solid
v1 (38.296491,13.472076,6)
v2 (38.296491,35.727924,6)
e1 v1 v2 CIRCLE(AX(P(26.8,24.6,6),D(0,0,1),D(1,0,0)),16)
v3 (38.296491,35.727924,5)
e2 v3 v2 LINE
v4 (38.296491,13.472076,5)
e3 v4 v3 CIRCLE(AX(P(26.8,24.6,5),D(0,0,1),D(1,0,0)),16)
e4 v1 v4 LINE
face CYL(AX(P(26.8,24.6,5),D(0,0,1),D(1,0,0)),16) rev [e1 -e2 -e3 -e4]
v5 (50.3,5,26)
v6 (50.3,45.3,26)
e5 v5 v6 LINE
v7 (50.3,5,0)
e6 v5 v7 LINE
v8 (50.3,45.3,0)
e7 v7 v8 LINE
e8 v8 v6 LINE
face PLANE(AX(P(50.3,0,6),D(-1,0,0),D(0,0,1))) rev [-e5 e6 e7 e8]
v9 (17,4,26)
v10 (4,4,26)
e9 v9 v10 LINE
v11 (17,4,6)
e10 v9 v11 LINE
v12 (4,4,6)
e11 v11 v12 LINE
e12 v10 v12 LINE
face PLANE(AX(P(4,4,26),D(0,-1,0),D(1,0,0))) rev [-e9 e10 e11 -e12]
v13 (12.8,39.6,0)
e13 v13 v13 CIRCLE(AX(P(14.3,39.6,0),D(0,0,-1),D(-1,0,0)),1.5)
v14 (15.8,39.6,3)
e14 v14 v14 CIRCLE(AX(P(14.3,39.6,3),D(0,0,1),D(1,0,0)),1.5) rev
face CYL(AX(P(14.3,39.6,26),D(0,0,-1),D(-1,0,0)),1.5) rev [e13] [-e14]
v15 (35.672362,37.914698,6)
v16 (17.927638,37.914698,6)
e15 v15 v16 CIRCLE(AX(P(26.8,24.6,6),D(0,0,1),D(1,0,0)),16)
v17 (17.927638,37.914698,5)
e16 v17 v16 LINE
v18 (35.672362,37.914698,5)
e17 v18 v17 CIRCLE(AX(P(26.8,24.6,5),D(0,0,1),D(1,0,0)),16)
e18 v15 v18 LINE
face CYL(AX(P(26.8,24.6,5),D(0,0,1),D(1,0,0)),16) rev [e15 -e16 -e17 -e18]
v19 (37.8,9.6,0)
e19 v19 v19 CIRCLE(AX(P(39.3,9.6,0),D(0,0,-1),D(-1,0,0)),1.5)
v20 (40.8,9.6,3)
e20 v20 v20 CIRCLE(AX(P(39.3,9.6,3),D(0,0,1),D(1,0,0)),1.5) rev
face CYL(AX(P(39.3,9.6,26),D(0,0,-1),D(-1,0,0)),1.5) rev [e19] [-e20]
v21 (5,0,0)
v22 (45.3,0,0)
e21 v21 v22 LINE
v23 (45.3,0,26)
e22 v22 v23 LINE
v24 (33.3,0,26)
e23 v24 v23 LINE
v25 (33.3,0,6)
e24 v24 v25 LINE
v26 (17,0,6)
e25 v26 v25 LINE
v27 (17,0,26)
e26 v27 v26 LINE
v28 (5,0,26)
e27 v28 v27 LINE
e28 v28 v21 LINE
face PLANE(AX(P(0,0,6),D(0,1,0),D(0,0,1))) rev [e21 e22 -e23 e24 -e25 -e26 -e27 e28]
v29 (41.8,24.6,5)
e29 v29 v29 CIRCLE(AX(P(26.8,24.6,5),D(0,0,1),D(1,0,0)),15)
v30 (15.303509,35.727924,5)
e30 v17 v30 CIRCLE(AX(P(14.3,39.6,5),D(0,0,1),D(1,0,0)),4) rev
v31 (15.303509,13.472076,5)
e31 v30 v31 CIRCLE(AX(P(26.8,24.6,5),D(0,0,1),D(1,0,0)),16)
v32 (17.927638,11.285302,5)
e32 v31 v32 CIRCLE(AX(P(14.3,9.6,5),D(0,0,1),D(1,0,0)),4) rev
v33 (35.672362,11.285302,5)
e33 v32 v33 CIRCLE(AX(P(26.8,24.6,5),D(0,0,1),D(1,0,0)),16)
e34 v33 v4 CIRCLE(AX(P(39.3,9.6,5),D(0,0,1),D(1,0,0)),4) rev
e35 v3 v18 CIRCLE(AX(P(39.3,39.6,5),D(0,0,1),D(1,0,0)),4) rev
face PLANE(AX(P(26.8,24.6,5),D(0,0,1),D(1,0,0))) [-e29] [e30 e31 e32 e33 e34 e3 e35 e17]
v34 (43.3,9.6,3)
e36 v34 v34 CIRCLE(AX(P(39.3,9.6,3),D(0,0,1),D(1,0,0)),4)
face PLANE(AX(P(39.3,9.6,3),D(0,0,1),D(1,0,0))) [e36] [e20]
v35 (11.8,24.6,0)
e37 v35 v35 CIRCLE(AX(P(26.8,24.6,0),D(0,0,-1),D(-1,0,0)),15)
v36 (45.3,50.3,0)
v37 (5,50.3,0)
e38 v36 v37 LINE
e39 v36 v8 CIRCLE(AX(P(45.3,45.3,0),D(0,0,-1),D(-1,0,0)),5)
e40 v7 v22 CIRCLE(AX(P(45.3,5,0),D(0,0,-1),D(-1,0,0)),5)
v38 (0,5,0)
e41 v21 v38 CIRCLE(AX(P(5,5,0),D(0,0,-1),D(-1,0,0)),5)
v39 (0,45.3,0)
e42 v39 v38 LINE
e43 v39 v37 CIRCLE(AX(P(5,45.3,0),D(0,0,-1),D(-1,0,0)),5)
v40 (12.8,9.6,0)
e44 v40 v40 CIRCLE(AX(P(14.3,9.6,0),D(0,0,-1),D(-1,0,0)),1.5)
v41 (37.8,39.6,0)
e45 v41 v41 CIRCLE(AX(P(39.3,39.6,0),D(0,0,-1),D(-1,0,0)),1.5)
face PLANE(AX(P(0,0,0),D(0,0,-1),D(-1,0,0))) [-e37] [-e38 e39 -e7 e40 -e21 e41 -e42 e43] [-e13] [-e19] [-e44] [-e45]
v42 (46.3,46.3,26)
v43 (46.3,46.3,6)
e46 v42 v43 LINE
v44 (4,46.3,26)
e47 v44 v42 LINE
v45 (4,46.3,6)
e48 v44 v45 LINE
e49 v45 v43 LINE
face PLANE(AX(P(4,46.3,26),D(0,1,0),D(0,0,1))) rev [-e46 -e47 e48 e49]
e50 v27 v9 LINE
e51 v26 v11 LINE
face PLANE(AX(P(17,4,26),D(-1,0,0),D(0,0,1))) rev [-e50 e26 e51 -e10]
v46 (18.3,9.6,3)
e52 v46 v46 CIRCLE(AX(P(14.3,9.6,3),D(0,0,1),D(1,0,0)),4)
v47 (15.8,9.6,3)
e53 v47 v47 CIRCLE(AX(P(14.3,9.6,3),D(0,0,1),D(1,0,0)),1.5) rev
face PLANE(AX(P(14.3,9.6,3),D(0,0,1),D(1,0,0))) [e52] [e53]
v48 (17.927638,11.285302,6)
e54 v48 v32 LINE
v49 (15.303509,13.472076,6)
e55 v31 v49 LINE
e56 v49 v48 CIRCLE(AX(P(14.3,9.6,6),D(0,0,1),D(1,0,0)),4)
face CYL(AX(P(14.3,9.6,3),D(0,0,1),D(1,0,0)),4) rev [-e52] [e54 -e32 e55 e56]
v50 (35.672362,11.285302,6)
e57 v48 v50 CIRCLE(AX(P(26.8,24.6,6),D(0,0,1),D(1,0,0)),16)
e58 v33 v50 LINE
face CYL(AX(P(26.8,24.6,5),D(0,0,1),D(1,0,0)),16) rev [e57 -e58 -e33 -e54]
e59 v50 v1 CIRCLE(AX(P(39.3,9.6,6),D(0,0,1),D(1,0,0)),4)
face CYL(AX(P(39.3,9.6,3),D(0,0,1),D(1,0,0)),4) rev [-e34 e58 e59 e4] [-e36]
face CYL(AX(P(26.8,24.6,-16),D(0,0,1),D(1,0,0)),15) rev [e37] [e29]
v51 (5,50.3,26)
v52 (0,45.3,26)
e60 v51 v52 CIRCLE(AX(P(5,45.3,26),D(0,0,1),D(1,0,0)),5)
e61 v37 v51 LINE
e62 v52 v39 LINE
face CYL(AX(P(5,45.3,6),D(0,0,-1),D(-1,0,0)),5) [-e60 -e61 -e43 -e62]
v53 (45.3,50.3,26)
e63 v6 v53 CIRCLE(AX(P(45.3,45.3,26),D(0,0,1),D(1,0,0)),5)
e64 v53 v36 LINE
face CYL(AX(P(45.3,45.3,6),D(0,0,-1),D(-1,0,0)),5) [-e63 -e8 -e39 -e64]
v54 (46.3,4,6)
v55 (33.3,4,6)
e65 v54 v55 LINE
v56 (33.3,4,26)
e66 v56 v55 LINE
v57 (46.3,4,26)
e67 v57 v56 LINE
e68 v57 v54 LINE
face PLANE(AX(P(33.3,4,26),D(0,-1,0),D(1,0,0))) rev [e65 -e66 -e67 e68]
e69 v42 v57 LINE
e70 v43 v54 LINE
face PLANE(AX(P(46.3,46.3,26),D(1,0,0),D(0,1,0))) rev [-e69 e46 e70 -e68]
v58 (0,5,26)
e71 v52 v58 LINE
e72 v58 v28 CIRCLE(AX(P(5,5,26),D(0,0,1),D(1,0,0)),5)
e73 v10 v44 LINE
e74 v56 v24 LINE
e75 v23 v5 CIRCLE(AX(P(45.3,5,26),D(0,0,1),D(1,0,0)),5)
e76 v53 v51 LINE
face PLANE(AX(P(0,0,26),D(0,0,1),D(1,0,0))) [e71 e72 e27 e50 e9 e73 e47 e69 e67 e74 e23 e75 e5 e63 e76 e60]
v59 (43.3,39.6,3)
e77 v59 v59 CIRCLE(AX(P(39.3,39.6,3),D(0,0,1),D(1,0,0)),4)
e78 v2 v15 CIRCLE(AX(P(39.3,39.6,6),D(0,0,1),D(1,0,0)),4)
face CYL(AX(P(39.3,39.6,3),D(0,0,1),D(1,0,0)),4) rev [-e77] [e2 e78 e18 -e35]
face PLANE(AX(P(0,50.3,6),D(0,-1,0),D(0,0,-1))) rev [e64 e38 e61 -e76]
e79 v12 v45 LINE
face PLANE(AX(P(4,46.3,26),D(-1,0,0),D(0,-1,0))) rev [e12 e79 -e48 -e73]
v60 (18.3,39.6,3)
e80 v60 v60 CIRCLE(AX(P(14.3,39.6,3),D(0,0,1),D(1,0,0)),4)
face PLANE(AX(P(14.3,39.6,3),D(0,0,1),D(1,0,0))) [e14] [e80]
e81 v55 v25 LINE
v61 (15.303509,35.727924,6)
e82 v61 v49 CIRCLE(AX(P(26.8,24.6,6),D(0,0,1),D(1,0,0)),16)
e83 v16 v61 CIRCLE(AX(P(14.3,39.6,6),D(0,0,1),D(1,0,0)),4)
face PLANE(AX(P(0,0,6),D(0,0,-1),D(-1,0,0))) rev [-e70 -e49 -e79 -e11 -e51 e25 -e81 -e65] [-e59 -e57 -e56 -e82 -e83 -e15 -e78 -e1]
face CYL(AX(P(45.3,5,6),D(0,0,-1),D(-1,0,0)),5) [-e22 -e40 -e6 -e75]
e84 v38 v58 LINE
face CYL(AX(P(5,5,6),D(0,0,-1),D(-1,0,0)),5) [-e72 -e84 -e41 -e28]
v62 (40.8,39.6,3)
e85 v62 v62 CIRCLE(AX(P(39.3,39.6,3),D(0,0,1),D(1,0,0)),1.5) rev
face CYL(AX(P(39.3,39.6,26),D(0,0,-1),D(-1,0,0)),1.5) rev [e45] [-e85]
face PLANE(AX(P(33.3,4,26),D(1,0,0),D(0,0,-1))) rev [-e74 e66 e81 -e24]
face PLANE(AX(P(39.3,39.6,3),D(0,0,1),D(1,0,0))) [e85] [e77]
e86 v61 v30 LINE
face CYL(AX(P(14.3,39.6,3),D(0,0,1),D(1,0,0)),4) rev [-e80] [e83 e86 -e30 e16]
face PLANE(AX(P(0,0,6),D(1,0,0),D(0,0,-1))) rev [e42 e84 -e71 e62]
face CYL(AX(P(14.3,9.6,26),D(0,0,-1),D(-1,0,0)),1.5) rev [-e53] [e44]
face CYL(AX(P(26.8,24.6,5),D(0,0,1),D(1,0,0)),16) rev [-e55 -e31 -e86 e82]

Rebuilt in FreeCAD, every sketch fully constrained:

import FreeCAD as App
import Part
import Sketcher

V = App.Vector
Q = App.Units.Quantity


def edges_at(feature, points):
    """Names of the edges that pass closest to the given points."""
    edges = feature.Shape.Edges
    near = lambda p: min(range(len(edges)), key=lambda i: edges[i].distToShape(Part.Vertex(*p))[0])
    return sorted({f"Edge{near(p) + 1}" for p in points})

doc = App.newDocument("Part")
body = doc.addObject("PartDesign::Body", "Body")

# Sketch on XY plane
sketch1 = body.newObject("Sketcher::SketchObject", "Sketch")
sketch1.AttachmentSupport = (doc.getObject("XY_Plane"), [""])
sketch1.MapMode = "FlatFace"
sketch1.addGeometry([
    Part.LineSegment(V(0, 50, 0), V(0, 0, 0)),
    Part.LineSegment(V(0, 0, 0), V(50, 0, 0)),
    Part.LineSegment(V(50, 0, 0), V(50, 50, 0)),
    Part.LineSegment(V(50, 50, 0), V(0, 50, 0)),
], False)
sketch1.addConstraint([
    Sketcher.Constraint("Coincident", 0, 2, 1, 1),
    Sketcher.Constraint("Coincident", 1, 2, 2, 1),
    Sketcher.Constraint("Coincident", 2, 2, 3, 1),
    Sketcher.Constraint("Coincident", 3, 2, 0, 1),
    Sketcher.Constraint("Vertical", 0),
    Sketcher.Constraint("Horizontal", 1),
    Sketcher.Constraint("Vertical", 2),
    Sketcher.Constraint("Horizontal", 3),
    Sketcher.Constraint("Coincident", 0, 2, -1, 1),
    Sketcher.Constraint("Equal", 3, 0),
    Sketcher.Constraint("DistanceX", 1, 1, 1, 2, Q("50.3 mm")),
])
pad1 = body.newObject("PartDesign::Pad", "Pad")
pad1.Profile = sketch1
pad1.Length = 6

# Sketch on XY plane
sketch2 = body.newObject("Sketcher::SketchObject", "Sketch001")
sketch2.AttachmentSupport = (doc.getObject("XY_Plane"), [""])
sketch2.MapMode = "FlatFace"
sketch2.AttachmentOffset = App.Placement(V(0, 0, 6), App.Rotation())
sketch2.addGeometry([
    Part.LineSegment(V(4, 46.3, 0), V(46.3, 46.3, 0)),  # 0
    Part.LineSegment(V(46.3, 46.3, 0), V(46.3, 4, 0)),  # 1
    Part.LineSegment(V(46.3, 4, 0), V(33.3, 4, 0)),  # 2
    Part.LineSegment(V(33.3, 4, 0), V(33.3, 0, 0)),  # 3
    Part.LineSegment(V(33.3, 0, 0), V(50.3, 0, 0)),  # 4
    Part.LineSegment(V(50.3, 0, 0), V(50.3, 50.3, 0)),  # 5
    Part.LineSegment(V(50.3, 50.3, 0), V(0, 50.3, 0)),  # 6
    Part.LineSegment(V(0, 50.3, 0), V(0, 0, 0)),  # 7
    Part.LineSegment(V(0, 0, 0), V(17, 0, 0)),  # 8
    Part.LineSegment(V(17, 0, 0), V(17, 4, 0)),  # 9
    Part.LineSegment(V(17, 4, 0), V(4, 4, 0)),  # 10
    Part.LineSegment(V(4, 4, 0), V(4, 46.3, 0)),  # 11
], False)
sketch2.addConstraint([
    Sketcher.Constraint("Coincident", 0, 2, 1, 1),
    Sketcher.Constraint("Coincident", 1, 2, 2, 1),
    Sketcher.Constraint("Coincident", 2, 2, 3, 1),
    Sketcher.Constraint("Coincident", 3, 2, 4, 1),
    Sketcher.Constraint("Coincident", 4, 2, 5, 1),
    Sketcher.Constraint("Coincident", 5, 2, 6, 1),
    Sketcher.Constraint("Coincident", 6, 2, 7, 1),
    Sketcher.Constraint("Coincident", 7, 2, 8, 1),
    Sketcher.Constraint("Coincident", 8, 2, 9, 1),
    Sketcher.Constraint("Coincident", 9, 2, 10, 1),
    Sketcher.Constraint("Coincident", 10, 2, 11, 1),
    Sketcher.Constraint("Coincident", 11, 2, 0, 1),
    Sketcher.Constraint("Horizontal", 0),
    Sketcher.Constraint("Vertical", 1),
    Sketcher.Constraint("Horizontal", 2),
    Sketcher.Constraint("Vertical", 3),
    Sketcher.Constraint("Horizontal", 4),
    Sketcher.Constraint("Vertical", 5),
    Sketcher.Constraint("Horizontal", 6),
    Sketcher.Constraint("Vertical", 7),
    Sketcher.Constraint("Horizontal", 8),
    Sketcher.Constraint("Vertical", 9),
    Sketcher.Constraint("Horizontal", 10),
    Sketcher.Constraint("Vertical", 11),
    Sketcher.Constraint("Coincident", 7, 2, -1, 1),
    Sketcher.Constraint("PointOnObject", 3, 2, -1),
    Sketcher.Constraint("Horizontal", 2, 2, 9, 2),
    Sketcher.Constraint("Equal", 4, 8),
    Sketcher.Constraint("Equal", 2, 10),
    Sketcher.Constraint("Equal", 0, 1),
    Sketcher.Constraint("Equal", 6, 5),
    Sketcher.Constraint("DistanceX", 2, 2, 2, 1, Q("13 mm")),
    Sketcher.Constraint("DistanceX", 4, 1, 4, 2, Q("17 mm")),
    Sketcher.Constraint("DistanceY", 3, 2, 3, 1, Q("4 mm")),
    Sketcher.Constraint("DistanceX", 0, 1, 0, 2, Q("42.3 mm")),
])
pad2 = body.newObject("PartDesign::Pad", "Pad001")
pad2.Profile = sketch2
pad2.Length = 20

# Sketch on XY plane
sketch3 = body.newObject("Sketcher::SketchObject", "Sketch002")
sketch3.AttachmentSupport = (doc.getObject("XY_Plane"), [""])
sketch3.MapMode = "FlatFace"
sketch3.addGeometry([
    Part.Circle(V(39.3, 39.6, 0), V(0, 0, 1), 1.5),
    Part.Circle(V(14.3, 39.6, 0), V(0, 0, 1), 1.5),
    Part.Circle(V(14.3, 9.6, 0), V(0, 0, 1), 1.5),
    Part.Circle(V(39.3, 9.6, 0), V(0, 0, 1), 1.5),
], False)
sketch3.addConstraint([
    Sketcher.Constraint("Equal", 0, 1),
    Sketcher.Constraint("Equal", 1, 2),
    Sketcher.Constraint("Equal", 2, 3),
    Sketcher.Constraint("Horizontal", 0, 3, 1, 3),
    Sketcher.Constraint("Horizontal", 2, 3, 3, 3),
    Sketcher.Constraint("Vertical", 1, 3, 2, 3),
    Sketcher.Constraint("Vertical", 0, 3, 3, 3),
    Sketcher.Constraint("Diameter", 0, Q("3 mm")),
    Sketcher.Constraint("DistanceX", 1, 3, 0, 3, Q("25 mm")),
    Sketcher.Constraint("DistanceY", 2, 3, 1, 3, Q("30 mm")),
    Sketcher.Constraint("DistanceX", -1, 1, 0, 3, Q("39.3 mm")),
    Sketcher.Constraint("DistanceY", -1, 1, 0, 3, Q("39.6 mm")),
])
pocket1 = body.newObject("PartDesign::Pocket", "Pocket")
pocket1.Profile = sketch3
pocket1.Type = "ThroughAll"
pocket1.Reversed = True
doc.recompute()

fillet = body.newObject("PartDesign::Fillet", "Fillet")
fillet.Base = (pocket1, edges_at(pocket1, [(0, 50.3, 13)]))
fillet.Radius = 5

# Sketch on XY plane
sketch4 = body.newObject("Sketcher::SketchObject", "Sketch003")
sketch4.AttachmentSupport = (doc.getObject("XY_Plane"), [""])
sketch4.MapMode = "FlatFace"
sketch4.AttachmentOffset = App.Placement(V(0, 0, 6), App.Rotation())
sketch4.addGeometry([
    Part.Circle(V(14.3, 39.6, 0), V(0, 0, 1), 4),
    Part.Circle(V(39.3, 39.6, 0), V(0, 0, 1), 4),
    Part.Circle(V(39.3, 9.6, 0), V(0, 0, 1), 4),
    Part.Circle(V(14.3, 9.6, 0), V(0, 0, 1), 4),
], False)
sketch4.addConstraint([
    Sketcher.Constraint("Equal", 0, 1),
    Sketcher.Constraint("Equal", 1, 2),
    Sketcher.Constraint("Equal", 2, 3),
    Sketcher.Constraint("Horizontal", 0, 3, 1, 3),
    Sketcher.Constraint("Horizontal", 2, 3, 3, 3),
    Sketcher.Constraint("Vertical", 1, 3, 2, 3),
    Sketcher.Constraint("Vertical", 0, 3, 3, 3),
    Sketcher.Constraint("Diameter", 0, Q("8 mm")),
    Sketcher.Constraint("DistanceX", 0, 3, 1, 3, Q("25 mm")),
    Sketcher.Constraint("DistanceY", 2, 3, 1, 3, Q("30 mm")),
    Sketcher.Constraint("DistanceX", -1, 1, 0, 3, Q("14.3 mm")),
    Sketcher.Constraint("DistanceY", -1, 1, 0, 3, Q("39.6 mm")),
])
pocket2 = body.newObject("PartDesign::Pocket", "Pocket001")
pocket2.Profile = sketch4
pocket2.Length = 3
doc.recompute()

fillet2 = body.newObject("PartDesign::Fillet", "Fillet001")
fillet2.Base = (pocket2, edges_at(pocket2, [(50.3, 50.3, 13), (50.3, 0, 13), (0, 0, 13)]))
fillet2.Radius = 5

# Sketch on XY plane
sketch5 = body.newObject("Sketcher::SketchObject", "Sketch004")
sketch5.AttachmentSupport = (doc.getObject("XY_Plane"), [""])
sketch5.MapMode = "FlatFace"
sketch5.AttachmentOffset = App.Placement(V(0, 0, 6), App.Rotation())
sketch5.addGeometry(Part.Circle(V(27, 25, 0), V(0, 0, 1), 16), False)
sketch5.addConstraint([
    Sketcher.Constraint("Diameter", 0, Q("32 mm")),
    Sketcher.Constraint("DistanceX", -1, 1, 0, 3, Q("26.8 mm")),
    Sketcher.Constraint("DistanceY", -1, 1, 0, 3, Q("24.6 mm")),
])
pocket3 = body.newObject("PartDesign::Pocket", "Pocket002")
pocket3.Profile = sketch5
pocket3.Length = 1

# Sketch on XY plane
sketch6 = body.newObject("Sketcher::SketchObject", "Sketch005")
sketch6.AttachmentSupport = (doc.getObject("XY_Plane"), [""])
sketch6.MapMode = "FlatFace"
sketch6.AttachmentOffset = App.Placement(V(0, 0, 5), App.Rotation())
sketch6.addGeometry(Part.Circle(V(27, 25, 0), V(0, 0, 1), 15), False)
sketch6.addConstraint([
    Sketcher.Constraint("Diameter", 0, Q("30 mm")),
    Sketcher.Constraint("DistanceX", -1, 1, 0, 3, Q("26.8 mm")),
    Sketcher.Constraint("DistanceY", -1, 1, 0, 3, Q("24.6 mm")),
])
pocket4 = body.newObject("PartDesign::Pocket", "Pocket003")
pocket4.Profile = sketch6
pocket4.Length = 21

doc.recompute()
